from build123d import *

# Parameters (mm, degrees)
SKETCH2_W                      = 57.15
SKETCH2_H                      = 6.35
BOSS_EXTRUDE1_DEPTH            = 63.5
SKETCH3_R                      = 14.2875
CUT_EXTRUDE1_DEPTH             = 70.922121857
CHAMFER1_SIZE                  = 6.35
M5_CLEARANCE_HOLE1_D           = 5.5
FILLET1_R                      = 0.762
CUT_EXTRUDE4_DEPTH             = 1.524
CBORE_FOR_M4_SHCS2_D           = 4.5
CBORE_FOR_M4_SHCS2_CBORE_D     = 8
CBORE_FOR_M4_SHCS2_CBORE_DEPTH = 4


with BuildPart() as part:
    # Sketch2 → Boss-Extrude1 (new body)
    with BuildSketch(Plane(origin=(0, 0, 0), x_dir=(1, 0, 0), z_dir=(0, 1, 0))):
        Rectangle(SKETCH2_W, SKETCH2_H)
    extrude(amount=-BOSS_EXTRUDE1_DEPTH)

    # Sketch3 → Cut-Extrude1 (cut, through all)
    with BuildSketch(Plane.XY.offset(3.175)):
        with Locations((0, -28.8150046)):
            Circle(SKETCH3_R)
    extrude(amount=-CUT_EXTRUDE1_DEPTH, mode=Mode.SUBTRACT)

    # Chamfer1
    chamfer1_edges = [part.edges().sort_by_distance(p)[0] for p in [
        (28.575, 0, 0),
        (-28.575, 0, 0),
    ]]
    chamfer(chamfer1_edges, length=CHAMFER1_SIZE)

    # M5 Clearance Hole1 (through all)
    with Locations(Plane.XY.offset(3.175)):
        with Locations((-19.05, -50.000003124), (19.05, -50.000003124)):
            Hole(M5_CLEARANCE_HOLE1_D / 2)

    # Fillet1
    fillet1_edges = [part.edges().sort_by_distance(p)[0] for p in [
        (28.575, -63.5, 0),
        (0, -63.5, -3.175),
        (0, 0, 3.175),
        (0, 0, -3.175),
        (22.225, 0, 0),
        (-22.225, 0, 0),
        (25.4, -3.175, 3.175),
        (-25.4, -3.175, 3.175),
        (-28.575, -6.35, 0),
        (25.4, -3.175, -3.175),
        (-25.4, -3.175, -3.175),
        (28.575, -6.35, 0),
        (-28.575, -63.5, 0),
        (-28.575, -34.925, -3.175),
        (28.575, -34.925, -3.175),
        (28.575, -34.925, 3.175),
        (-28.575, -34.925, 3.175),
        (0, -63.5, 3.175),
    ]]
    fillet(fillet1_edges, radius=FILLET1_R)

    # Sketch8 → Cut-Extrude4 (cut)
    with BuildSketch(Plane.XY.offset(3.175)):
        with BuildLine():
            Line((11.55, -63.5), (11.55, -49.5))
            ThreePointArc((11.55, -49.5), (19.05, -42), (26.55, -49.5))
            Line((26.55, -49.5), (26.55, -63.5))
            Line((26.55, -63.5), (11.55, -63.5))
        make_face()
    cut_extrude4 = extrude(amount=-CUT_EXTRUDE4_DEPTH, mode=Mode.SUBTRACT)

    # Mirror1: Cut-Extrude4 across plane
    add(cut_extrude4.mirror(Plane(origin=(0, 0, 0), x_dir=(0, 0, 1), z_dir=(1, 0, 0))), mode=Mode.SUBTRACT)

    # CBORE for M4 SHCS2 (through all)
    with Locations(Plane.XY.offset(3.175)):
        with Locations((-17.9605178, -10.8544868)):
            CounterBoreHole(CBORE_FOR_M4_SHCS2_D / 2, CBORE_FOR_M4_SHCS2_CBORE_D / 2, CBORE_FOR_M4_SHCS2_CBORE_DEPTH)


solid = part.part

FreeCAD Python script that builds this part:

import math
import FreeCAD as App
import Part
import Sketcher

V = App.Vector
Q = App.Units.Quantity


def edges_at(feature, points):
    """Names of the edges that pass closest to the given points."""
    edges = feature.Shape.Edges
    near = lambda p: min(range(len(edges)), key=lambda i: edges[i].distToShape(Part.Vertex(*p))[0])
    return sorted({f"Edge{near(p) + 1}" for p in points})

doc = App.newDocument("Part")
body = doc.addObject("PartDesign::Body", "Body")

# Sketch on XZ plane
sketch1 = body.newObject("Sketcher::SketchObject", "Sketch")
sketch1.AttachmentSupport = (doc.getObject("XZ_Plane"), [""])
sketch1.MapMode = "FlatFace"
sketch1.addGeometry([
    Part.LineSegment(V(-29, -3, 0), V(-29, 3, 0)),
    Part.LineSegment(V(-29, 3, 0), V(29, 3, 0)),
    Part.LineSegment(V(29, 3, 0), V(29, -3, 0)),
    Part.LineSegment(V(29, -3, 0), V(-29, -3, 0)),
], False)
sketch1.addConstraint([
    Sketcher.Constraint("Coincident", 0, 2, 1, 1),
    Sketcher.Constraint("Coincident", 1, 2, 2, 1),
    Sketcher.Constraint("Coincident", 2, 2, 3, 1),
    Sketcher.Constraint("Coincident", 3, 2, 0, 1),
    Sketcher.Constraint("Vertical", 0),
    Sketcher.Constraint("Horizontal", 1),
    Sketcher.Constraint("Vertical", 2),
    Sketcher.Constraint("Horizontal", 3),
    Sketcher.Constraint("Symmetric", 0, 2, 2, 2, -1, 1),
    Sketcher.Constraint("DistanceX", 1, 1, 1, 2, Q("2.25 in")),
    Sketcher.Constraint("DistanceY", 0, 1, 0, 2, Q("0.25 in")),
])
pad1 = body.newObject("PartDesign::Pad", "Pad")
pad1.Profile = sketch1
pad1.Length = Q("2.5 in")

# Sketch on XY plane
sketch2 = body.newObject("Sketcher::SketchObject", "Sketch001")
sketch2.AttachmentSupport = (doc.getObject("XY_Plane"), [""])
sketch2.MapMode = "FlatFace"
sketch2.AttachmentOffset = App.Placement(V(0, 0, 0.125 * 25.4), App.Rotation())
sketch2.addGeometry(Part.Circle(V(0, -29, 0), V(0, 0, 1), 14), False)
sketch2.addConstraint([
    Sketcher.Constraint("PointOnObject", 0, 3, -2),
    Sketcher.Constraint("Diameter", 0, Q("1.125 in")),
    Sketcher.Constraint("DistanceY", 0, 3, -1, 1, 28.815005),
])
pocket1 = body.newObject("PartDesign::Pocket", "Pocket")
pocket1.Profile = sketch2
pocket1.Type = "ThroughAll"
doc.recompute()

chamfer = body.newObject("PartDesign::Chamfer", "Chamfer")
chamfer.Base = (pocket1, edges_at(pocket1, [(28.575, 0, 0), (-28.575, 0, 0)]))
chamfer.Size = Q("0.25 in")

# Sketch on XY plane
sketch3 = body.newObject("Sketcher::SketchObject", "Sketch002")
sketch3.AttachmentSupport = (doc.getObject("XY_Plane"), [""])
sketch3.MapMode = "FlatFace"
sketch3.AttachmentOffset = App.Placement(V(0, 0, 0.125 * 25.4), App.Rotation())
sketch3.addGeometry([
    Part.Circle(V(-19.1, -50, 0), V(0, 0, 1), 2.8),
    Part.Circle(V(19.1, -50, 0), V(0, 0, 1), 2.8),
], False)
sketch3.addConstraint([
    Sketcher.Constraint("Equal", 0, 1),
    Sketcher.Constraint("Symmetric", 0, 3, 1, 3, -2),
    Sketcher.Constraint("DistanceX", 0, 3, 1, 3, Q("1.5 in")),
    Sketcher.Constraint("Diameter", 0, 5.5),
    Sketcher.Constraint("DistanceY", 0, 3, -1, 1, 50.000003),
])
doc.recompute()
hole = body.newObject("PartDesign::Hole", "Hole")
hole.Profile = sketch3
hole.ThreadType = "None"
hole.Diameter = 5.5
hole.DepthType = "ThroughAll"
doc.recompute()

fillet = body.newObject("PartDesign::Fillet", "Fillet")
fillet.Base = (hole, edges_at(hole, [
    (28.575, -63.5, 0),
    (0, -63.5, -3.175),
    (0, 0, 3.175),
    (0, 0, -3.175),
    (22.225, 0, 0),
    (-22.225, 0, 0),
    (25.4, -3.175, 3.175),
    (-25.4, -3.175, 3.175),
    (-28.575, -6.35, 0),
    (25.4, -3.175, -3.175),
    (-25.4, -3.175, -3.175),
    (28.575, -6.35, 0),
    (-28.575, -63.5, 0),
    (-28.575, -34.925, -3.175),
    (28.575, -34.925, -3.175),
    (28.575, -34.925, 3.175),
    (-28.575, -34.925, 3.175),
    (0, -63.5, 3.175),
]))
fillet.Radius = Q("0.03 in")

# Sketch on XY plane
sketch4 = body.newObject("Sketcher::SketchObject", "Sketch003")
sketch4.AttachmentSupport = (doc.getObject("XY_Plane"), [""])
sketch4.MapMode = "FlatFace"
sketch4.AttachmentOffset = App.Placement(V(0, 0, 0.125 * 25.4), App.Rotation())
sketch4.addGeometry([
    Part.LineSegment(V(12, -50, 0), V(12, -64, 0)),
    Part.LineSegment(V(12, -64, 0), V(27, -64, 0)),
    Part.LineSegment(V(27, -64, 0), V(27, -50, 0)),
    Part.ArcOfCircle(Part.Circle(V(19, -50, 0), V(0, 0, 1), 8), math.radians(0), math.radians(180)),
], False)
sketch4.addConstraint([
    Sketcher.Constraint("Coincident", 0, 2, 1, 1),
    Sketcher.Constraint("Coincident", 1, 2, 2, 1),
    Sketcher.Constraint("Tangent", 2, 2, 3, 1),
    Sketcher.Constraint("Tangent", 3, 2, 0, 1),
    Sketcher.Constraint("Vertical", 0),
    Sketcher.Constraint("Horizontal", 1),
    Sketcher.Constraint("Vertical", 2),
    Sketcher.Constraint("DistanceY", 0, 2, -1, 1, Q("2.5 in")),
    Sketcher.Constraint("DistanceX", -1, 1, 3, 3, Q("0.75 in")),
    Sketcher.Constraint("Radius", 3, 7.5),
    Sketcher.Constraint("DistanceY", 0, 2, 0, 1, 14.0),
])
pocket2 = body.newObject("PartDesign::Pocket", "Pocket001")
pocket2.Profile = sketch4
pocket2.Length = Q("0.06 in")
doc.recompute()

mirrored = body.newObject("PartDesign::Mirrored", "Mirrored")
mirrored.Originals = [pocket2]
mirrored.MirrorPlane = (doc.getObject("YZ_Plane"), [""])
body.Tip = mirrored

# Sketch on XY plane
sketch5 = body.newObject("Sketcher::SketchObject", "Sketch004")
sketch5.AttachmentSupport = (doc.getObject("XY_Plane"), [""])
sketch5.MapMode = "FlatFace"
sketch5.AttachmentOffset = App.Placement(V(0, 0, 0.125 * 25.4), App.Rotation())
sketch5.addGeometry(Part.Circle(V(-18, -10.9, 0), V(0, 0, 1), 2.2), False)
sketch5.addConstraint([
    Sketcher.Constraint("Diameter", 0, 4.5),
    Sketcher.Constraint("DistanceX", 0, 3, -1, 1, 17.960518),
    Sketcher.Constraint("DistanceY", 0, 3, -1, 1, 10.854487),
])
doc.recompute()
hole2 = body.newObject("PartDesign::Hole", "Hole001")
hole2.Profile = sketch5
hole2.ThreadType = "None"
hole2.Diameter = 4.5
hole2.DepthType = "ThroughAll"
hole2.HoleCutType = "Counterbore"
hole2.HoleCutDiameter = 8
hole2.HoleCutDepth = 4

doc.recompute()
